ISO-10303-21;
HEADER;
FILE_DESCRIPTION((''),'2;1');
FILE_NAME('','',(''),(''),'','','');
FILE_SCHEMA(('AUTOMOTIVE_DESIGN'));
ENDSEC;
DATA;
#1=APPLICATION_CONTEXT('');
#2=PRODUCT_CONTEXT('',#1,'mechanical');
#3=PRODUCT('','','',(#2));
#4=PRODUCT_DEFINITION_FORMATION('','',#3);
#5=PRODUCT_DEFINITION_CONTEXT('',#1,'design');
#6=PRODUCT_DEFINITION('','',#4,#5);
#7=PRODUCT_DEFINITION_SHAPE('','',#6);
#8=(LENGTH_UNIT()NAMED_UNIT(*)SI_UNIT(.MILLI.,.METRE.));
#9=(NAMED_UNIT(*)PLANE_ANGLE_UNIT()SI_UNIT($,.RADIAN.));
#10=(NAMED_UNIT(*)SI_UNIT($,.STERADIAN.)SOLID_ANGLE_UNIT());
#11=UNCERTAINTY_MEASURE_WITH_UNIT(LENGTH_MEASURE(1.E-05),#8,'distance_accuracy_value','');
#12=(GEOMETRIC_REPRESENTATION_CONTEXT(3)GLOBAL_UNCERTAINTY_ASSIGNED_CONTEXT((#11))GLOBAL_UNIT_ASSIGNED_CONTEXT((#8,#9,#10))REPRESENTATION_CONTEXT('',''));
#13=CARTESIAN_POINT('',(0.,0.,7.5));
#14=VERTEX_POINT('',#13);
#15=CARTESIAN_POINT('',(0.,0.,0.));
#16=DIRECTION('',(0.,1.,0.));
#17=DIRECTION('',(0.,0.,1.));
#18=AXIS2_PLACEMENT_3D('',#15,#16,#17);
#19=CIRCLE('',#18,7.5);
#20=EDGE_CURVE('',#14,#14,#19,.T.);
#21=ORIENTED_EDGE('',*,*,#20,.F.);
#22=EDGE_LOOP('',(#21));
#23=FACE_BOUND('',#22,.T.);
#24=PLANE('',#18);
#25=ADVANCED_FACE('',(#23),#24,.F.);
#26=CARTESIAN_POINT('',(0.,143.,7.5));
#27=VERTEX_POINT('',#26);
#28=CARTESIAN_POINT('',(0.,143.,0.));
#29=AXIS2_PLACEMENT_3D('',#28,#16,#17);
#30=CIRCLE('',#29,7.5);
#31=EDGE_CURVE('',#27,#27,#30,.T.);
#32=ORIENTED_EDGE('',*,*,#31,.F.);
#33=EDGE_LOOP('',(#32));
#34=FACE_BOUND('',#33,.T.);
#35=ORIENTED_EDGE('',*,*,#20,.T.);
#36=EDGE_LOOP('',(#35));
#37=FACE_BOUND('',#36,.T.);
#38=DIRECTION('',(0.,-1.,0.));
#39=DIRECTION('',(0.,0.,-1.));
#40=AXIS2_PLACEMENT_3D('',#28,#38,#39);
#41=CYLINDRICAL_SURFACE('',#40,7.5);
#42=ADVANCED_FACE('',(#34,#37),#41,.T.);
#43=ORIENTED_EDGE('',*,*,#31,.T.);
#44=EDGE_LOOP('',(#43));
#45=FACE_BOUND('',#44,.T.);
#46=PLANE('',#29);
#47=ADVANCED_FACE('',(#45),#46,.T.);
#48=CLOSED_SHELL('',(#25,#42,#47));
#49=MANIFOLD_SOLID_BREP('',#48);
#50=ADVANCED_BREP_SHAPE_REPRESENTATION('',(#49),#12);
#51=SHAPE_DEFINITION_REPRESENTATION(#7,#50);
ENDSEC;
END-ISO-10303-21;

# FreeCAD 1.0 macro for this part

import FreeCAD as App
import Part
import Sketcher
from FreeCAD import Vector
Q = App.Units.Quantity

doc = App.newDocument("Part")
params = doc.addObject("Spreadsheet::Sheet", "Params")
for row, (alias, value) in enumerate([
    ("sketch1_diameter", "15 mm"),
    ("pad1_length", "143 mm"),
], start=1):
    params.set(f"A{row}", alias)
    params.set(f"B{row}", "=" + value)
    params.setAlias(f"B{row}", alias)

body = doc.addObject("PartDesign::Body", "Body")

# Sketch on XZ plane
sketch1 = doc.addObject("Sketcher::SketchObject", "Sketch")
body.addObject(sketch1)
sketch1.AttachmentSupport = (doc.XZ_Plane, [""])
sketch1.MapMode = "FlatFace"
sketch1.addGeometry(Part.Circle(Vector(0, 0, 0), Vector(0, 0, 1), 8), False)
sketch1.addConstraint([
    Sketcher.Constraint("Coincident", 0, 3, -1, 1),
    Sketcher.Constraint("Diameter", 0, Q("15 mm")),
])
sketch1.setExpression("Constraints[1]", "Params.sketch1_diameter")
pad1 = doc.addObject("PartDesign::Pad", "Pad")
body.addObject(pad1)
pad1.Profile = sketch1
pad1.setExpression("Length", "Params.pad1_length")
pad1.Reversed = True

doc.recompute()
